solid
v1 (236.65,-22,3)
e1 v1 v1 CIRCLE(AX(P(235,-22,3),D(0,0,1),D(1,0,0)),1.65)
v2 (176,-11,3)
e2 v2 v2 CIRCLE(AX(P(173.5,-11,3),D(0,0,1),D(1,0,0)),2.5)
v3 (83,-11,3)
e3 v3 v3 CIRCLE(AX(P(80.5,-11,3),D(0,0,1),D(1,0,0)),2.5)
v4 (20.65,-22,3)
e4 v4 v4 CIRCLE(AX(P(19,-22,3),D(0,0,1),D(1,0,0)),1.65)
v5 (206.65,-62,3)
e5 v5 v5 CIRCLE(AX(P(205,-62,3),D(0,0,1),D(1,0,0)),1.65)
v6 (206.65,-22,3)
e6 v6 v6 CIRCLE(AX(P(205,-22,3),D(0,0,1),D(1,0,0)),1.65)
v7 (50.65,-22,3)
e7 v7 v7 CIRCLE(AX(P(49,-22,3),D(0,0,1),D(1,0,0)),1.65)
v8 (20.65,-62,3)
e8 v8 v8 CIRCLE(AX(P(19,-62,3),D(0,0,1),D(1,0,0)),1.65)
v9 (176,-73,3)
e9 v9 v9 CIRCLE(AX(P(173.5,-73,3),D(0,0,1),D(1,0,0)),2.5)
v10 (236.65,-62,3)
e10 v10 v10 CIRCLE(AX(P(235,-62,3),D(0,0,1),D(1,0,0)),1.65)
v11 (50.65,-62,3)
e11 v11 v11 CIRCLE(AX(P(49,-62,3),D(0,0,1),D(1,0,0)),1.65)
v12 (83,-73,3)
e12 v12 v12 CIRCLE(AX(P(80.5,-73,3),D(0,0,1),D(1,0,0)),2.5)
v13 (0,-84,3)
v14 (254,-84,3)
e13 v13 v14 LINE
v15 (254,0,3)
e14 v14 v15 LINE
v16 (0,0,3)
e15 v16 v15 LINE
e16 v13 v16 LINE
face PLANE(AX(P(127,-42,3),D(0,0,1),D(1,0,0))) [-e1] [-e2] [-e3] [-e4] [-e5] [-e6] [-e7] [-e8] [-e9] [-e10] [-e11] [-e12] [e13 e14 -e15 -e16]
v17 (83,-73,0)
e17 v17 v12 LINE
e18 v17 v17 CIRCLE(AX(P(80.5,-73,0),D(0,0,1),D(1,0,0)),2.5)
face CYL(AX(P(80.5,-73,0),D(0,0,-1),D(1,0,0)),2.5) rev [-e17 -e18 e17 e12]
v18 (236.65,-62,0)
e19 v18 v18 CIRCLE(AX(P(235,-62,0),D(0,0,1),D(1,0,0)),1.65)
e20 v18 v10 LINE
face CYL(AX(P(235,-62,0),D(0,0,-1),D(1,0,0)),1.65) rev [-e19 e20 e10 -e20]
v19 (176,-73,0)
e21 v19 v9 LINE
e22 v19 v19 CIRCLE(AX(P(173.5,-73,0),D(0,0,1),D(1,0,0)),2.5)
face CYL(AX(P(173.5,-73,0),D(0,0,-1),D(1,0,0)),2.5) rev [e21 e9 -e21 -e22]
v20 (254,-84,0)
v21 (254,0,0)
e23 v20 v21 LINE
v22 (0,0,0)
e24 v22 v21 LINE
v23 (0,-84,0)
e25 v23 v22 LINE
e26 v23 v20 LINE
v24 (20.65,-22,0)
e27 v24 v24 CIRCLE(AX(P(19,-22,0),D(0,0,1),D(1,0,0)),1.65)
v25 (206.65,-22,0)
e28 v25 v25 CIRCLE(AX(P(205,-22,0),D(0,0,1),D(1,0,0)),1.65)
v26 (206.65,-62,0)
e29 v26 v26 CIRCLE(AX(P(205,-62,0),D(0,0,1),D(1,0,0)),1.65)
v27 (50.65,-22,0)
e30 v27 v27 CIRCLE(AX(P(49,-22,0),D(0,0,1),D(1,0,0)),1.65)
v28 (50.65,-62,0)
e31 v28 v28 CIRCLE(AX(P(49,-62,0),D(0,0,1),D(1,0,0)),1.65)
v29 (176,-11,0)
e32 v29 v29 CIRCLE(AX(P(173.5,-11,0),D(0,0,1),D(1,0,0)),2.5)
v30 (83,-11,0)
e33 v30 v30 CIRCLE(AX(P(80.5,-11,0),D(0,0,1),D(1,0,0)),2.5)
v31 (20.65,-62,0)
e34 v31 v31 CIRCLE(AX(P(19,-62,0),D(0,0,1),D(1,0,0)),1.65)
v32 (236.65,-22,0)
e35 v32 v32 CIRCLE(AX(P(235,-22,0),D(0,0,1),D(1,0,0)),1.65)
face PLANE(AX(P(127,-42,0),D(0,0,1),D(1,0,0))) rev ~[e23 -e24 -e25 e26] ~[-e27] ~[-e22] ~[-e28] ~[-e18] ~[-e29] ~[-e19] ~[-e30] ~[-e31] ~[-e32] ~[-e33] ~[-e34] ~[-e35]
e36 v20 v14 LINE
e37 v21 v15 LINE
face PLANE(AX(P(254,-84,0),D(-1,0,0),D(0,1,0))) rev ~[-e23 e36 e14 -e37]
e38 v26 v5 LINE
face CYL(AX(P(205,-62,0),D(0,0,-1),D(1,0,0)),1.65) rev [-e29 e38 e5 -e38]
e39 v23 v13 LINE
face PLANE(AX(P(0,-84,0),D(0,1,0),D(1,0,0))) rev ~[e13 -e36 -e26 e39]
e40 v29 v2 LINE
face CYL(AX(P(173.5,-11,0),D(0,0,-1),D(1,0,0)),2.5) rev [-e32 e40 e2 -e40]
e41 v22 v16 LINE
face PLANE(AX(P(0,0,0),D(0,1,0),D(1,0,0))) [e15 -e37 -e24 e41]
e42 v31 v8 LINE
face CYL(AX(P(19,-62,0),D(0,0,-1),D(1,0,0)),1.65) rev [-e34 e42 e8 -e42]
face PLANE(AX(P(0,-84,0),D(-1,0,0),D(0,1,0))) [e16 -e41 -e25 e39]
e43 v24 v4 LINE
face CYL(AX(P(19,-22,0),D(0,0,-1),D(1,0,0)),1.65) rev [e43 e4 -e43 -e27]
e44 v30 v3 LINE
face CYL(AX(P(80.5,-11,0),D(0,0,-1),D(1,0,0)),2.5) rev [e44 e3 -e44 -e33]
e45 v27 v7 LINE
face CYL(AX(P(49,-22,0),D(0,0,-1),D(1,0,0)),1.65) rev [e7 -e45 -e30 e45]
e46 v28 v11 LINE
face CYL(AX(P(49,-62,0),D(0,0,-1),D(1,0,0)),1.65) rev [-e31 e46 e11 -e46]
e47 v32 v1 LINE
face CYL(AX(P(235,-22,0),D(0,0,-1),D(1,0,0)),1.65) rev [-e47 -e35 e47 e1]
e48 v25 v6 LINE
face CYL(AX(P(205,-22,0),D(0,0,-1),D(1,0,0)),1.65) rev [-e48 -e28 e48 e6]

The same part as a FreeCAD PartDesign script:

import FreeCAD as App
import Part
import Sketcher
Q = App.Units.Quantity


def add_polygon(sketch, points):
    """Adds a closed chain of lines whose ends are joined by coincident constraints."""
    first, n = sketch.GeometryCount, len(points)
    for a, b in zip(points, points[1:] + points[:1]):
        sketch.addGeometry(Part.LineSegment(App.Vector(*a, 0), App.Vector(*b, 0)), False)
    for i in range(n):
        sketch.addConstraint(Sketcher.Constraint("Coincident", first + i, 2, first + (i + 1) % n, 1))

doc = App.newDocument("Part")
body = doc.addObject("PartDesign::Body", "Body")

sketch1 = body.newObject("Sketcher::SketchObject", "Sketch")
sketch1.AttachmentSupport = (doc.getObject("XY_Plane"), [""])
sketch1.MapMode = "FlatFace"
add_polygon(sketch1, [(0, 0), (0, -84), (254, -84), (254, 0)])
sketch1.addGeometry(Part.Circle(App.Vector(19, -62, 0), App.Vector(0, 0, 1), 1.6), False)
sketch1.addGeometry(Part.Circle(App.Vector(49, -62, 0), App.Vector(0, 0, 1), 1.6), False)
sketch1.addGeometry(Part.Circle(App.Vector(80.5, -73, 0), App.Vector(0, 0, 1), 2.5), False)
sketch1.addGeometry(Part.Circle(App.Vector(173.5, -73, 0), App.Vector(0, 0, 1), 2.5), False)
sketch1.addGeometry(Part.Circle(App.Vector(205, -62, 0), App.Vector(0, 0, 1), 1.6), False)
sketch1.addGeometry(Part.Circle(App.Vector(235, -62, 0), App.Vector(0, 0, 1), 1.6), False)
sketch1.addGeometry(Part.Circle(App.Vector(19, -22, 0), App.Vector(0, 0, 1), 1.6), False)
sketch1.addGeometry(Part.Circle(App.Vector(49, -22, 0), App.Vector(0, 0, 1), 1.6), False)
sketch1.addGeometry(Part.Circle(App.Vector(80.5, -11, 0), App.Vector(0, 0, 1), 2.5), False)
sketch1.addGeometry(Part.Circle(App.Vector(173.5, -11, 0), App.Vector(0, 0, 1), 2.5), False)
sketch1.addGeometry(Part.Circle(App.Vector(205, -22, 0), App.Vector(0, 0, 1), 1.6), False)
sketch1.addGeometry(Part.Circle(App.Vector(235, -22, 0), App.Vector(0, 0, 1), 1.6), False)
sketch1.addConstraint(Sketcher.Constraint("Vertical", 0))
sketch1.addConstraint(Sketcher.Constraint("Horizontal", 1))
sketch1.addConstraint(Sketcher.Constraint("Vertical", 2))
sketch1.addConstraint(Sketcher.Constraint("Horizontal", 3))
sketch1.addConstraint(Sketcher.Constraint("Coincident", 3, 2, -1, 1))
sketch1.addConstraint(Sketcher.Constraint("Equal", 4, 5))
sketch1.addConstraint(Sketcher.Constraint("Equal", 6, 7))
sketch1.addConstraint(Sketcher.Constraint("Equal", 5, 8))
sketch1.addConstraint(Sketcher.Constraint("Equal", 8, 9))
sketch1.addConstraint(Sketcher.Constraint("Equal", 9, 10))
sketch1.addConstraint(Sketcher.Constraint("Equal", 10, 11))
sketch1.addConstraint(Sketcher.Constraint("Equal", 7, 12))
sketch1.addConstraint(Sketcher.Constraint("Equal", 12, 13))
sketch1.addConstraint(Sketcher.Constraint("Equal", 11, 14))
sketch1.addConstraint(Sketcher.Constraint("Equal", 14, 15))
sketch1.addConstraint(Sketcher.Constraint("Horizontal", 4, 3, 5, 3))
sketch1.addConstraint(Sketcher.Constraint("Horizontal", 6, 3, 7, 3))
sketch1.addConstraint(Sketcher.Constraint("Horizontal", 5, 3, 8, 3))
sketch1.addConstraint(Sketcher.Constraint("Horizontal", 8, 3, 9, 3))
sketch1.addConstraint(Sketcher.Constraint("Horizontal", 10, 3, 11, 3))
sketch1.addConstraint(Sketcher.Constraint("Horizontal", 12, 3, 13, 3))
sketch1.addConstraint(Sketcher.Constraint("Horizontal", 11, 3, 14, 3))
sketch1.addConstraint(Sketcher.Constraint("Horizontal", 14, 3, 15, 3))
sketch1.addConstraint(Sketcher.Constraint("Vertical", 4, 3, 10, 3))
sketch1.addConstraint(Sketcher.Constraint("Vertical", 5, 3, 11, 3))
sketch1.addConstraint(Sketcher.Constraint("Vertical", 6, 3, 12, 3))
sketch1.addConstraint(Sketcher.Constraint("Vertical", 7, 3, 13, 3))
sketch1.addConstraint(Sketcher.Constraint("Vertical", 8, 3, 14, 3))
sketch1.addConstraint(Sketcher.Constraint("Vertical", 9, 3, 15, 3))
sketch1.addConstraint(Sketcher.Constraint("Diameter", 6, Q("5 mm")))
sketch1.addConstraint(Sketcher.Constraint("Diameter", 4, Q("3.3 mm")))
sketch1.addConstraint(Sketcher.Constraint("DistanceX", 1, 1, 1, 2, Q("254 mm")))
sketch1.addConstraint(Sketcher.Constraint("DistanceY", 0, 2, 0, 1, Q("84 mm")))
sketch1.addConstraint(Sketcher.Constraint("DistanceX", -1, 1, 4, 3, Q("19 mm")))
sketch1.addConstraint(Sketcher.Constraint("DistanceY", 4, 3, -1, 1, Q("62 mm")))
sketch1.addConstraint(Sketcher.Constraint("DistanceX", -1, 1, 5, 3, Q("49 mm")))
sketch1.addConstraint(Sketcher.Constraint("DistanceY", 6, 3, -1, 1, Q("73 mm")))
sketch1.addConstraint(Sketcher.Constraint("DistanceX", -1, 1, 8, 3, Q("205 mm")))
sketch1.addConstraint(Sketcher.Constraint("DistanceX", -1, 1, 9, 3, Q("235 mm")))
sketch1.addConstraint(Sketcher.Constraint("DistanceY", 10, 3, -1, 1, Q("22 mm")))
sketch1.addConstraint(Sketcher.Constraint("DistanceY", 12, 3, -1, 1, Q("11 mm")))
sketch1.addConstraint(Sketcher.Constraint("DistanceX", 6, 3, 7, 3, Q("93 mm")))
sketch1.addConstraint(Sketcher.Constraint("DistanceX", -1, 1, 6, 3, Q("80.5 mm")))
pad1 = body.newObject("PartDesign::Pad", "Pad")
pad1.Profile = sketch1
pad1.Length = 3

doc.recompute()
